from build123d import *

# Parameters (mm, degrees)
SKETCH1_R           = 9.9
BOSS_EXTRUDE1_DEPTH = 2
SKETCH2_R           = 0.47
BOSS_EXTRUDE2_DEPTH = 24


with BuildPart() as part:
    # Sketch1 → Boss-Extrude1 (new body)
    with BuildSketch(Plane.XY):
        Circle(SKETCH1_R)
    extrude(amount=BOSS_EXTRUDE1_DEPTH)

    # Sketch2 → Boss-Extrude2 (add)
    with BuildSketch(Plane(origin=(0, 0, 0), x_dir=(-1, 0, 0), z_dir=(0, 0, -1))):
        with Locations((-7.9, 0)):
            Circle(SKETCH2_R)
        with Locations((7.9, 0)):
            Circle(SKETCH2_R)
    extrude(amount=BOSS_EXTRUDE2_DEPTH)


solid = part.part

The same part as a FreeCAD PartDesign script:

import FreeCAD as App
import Part
import Sketcher

doc = App.newDocument("Part")
body = doc.addObject("PartDesign::Body", "Body")

# Sketch on XY plane
sketch1 = doc.addObject("Sketcher::SketchObject", "Sketch")
body.addObject(sketch1)
sketch1.AttachmentSupport = (doc.XY_Plane, [""])
sketch1.MapMode = "FlatFace"
sketch1.addGeometry(Part.Circle(App.Vector(0, 0, 0), App.Vector(0, 0, 1), 10), False)
sketch1.addConstraint(Sketcher.Constraint("Coincident", 0, 3, -1, 1))
sketch1.addConstraint(Sketcher.Constraint("Diameter", 0, 19.8))
pad1 = doc.addObject("PartDesign::Pad", "Pad")
body.addObject(pad1)
pad1.Profile = sketch1
pad1.Length = 2

# Sketch on XY plane
sketch2 = doc.addObject("Sketcher::SketchObject", "Sketch001")
body.addObject(sketch2)
sketch2.AttachmentSupport = (doc.XY_Plane, [""])
sketch2.MapMode = "FlatFace"
sketch2.addGeometry(Part.Circle(App.Vector(7.9, 0, 0), App.Vector(0, 0, 1), 0.47), False)
sketch2.addGeometry(Part.Circle(App.Vector(-7.9, 0, 0), App.Vector(0, 0, 1), 0.47), False)
sketch2.addConstraint(Sketcher.Constraint("Equal", 0, 1))
sketch2.addConstraint(Sketcher.Constraint("Symmetric", 0, 3, 1, 3, -1, 1))
sketch2.addConstraint(Sketcher.Constraint("PointOnObject", 0, 3, -1))
sketch2.addConstraint(Sketcher.Constraint("Diameter", 0, 0.94))
sketch2.addConstraint(Sketcher.Constraint("DistanceX", -1, 1, 0, 3, 7.9))
pad2 = doc.addObject("PartDesign::Pad", "Pad001")
body.addObject(pad2)
pad2.Profile = sketch2
pad2.Length = 24
pad2.Reversed = True

doc.recompute()
